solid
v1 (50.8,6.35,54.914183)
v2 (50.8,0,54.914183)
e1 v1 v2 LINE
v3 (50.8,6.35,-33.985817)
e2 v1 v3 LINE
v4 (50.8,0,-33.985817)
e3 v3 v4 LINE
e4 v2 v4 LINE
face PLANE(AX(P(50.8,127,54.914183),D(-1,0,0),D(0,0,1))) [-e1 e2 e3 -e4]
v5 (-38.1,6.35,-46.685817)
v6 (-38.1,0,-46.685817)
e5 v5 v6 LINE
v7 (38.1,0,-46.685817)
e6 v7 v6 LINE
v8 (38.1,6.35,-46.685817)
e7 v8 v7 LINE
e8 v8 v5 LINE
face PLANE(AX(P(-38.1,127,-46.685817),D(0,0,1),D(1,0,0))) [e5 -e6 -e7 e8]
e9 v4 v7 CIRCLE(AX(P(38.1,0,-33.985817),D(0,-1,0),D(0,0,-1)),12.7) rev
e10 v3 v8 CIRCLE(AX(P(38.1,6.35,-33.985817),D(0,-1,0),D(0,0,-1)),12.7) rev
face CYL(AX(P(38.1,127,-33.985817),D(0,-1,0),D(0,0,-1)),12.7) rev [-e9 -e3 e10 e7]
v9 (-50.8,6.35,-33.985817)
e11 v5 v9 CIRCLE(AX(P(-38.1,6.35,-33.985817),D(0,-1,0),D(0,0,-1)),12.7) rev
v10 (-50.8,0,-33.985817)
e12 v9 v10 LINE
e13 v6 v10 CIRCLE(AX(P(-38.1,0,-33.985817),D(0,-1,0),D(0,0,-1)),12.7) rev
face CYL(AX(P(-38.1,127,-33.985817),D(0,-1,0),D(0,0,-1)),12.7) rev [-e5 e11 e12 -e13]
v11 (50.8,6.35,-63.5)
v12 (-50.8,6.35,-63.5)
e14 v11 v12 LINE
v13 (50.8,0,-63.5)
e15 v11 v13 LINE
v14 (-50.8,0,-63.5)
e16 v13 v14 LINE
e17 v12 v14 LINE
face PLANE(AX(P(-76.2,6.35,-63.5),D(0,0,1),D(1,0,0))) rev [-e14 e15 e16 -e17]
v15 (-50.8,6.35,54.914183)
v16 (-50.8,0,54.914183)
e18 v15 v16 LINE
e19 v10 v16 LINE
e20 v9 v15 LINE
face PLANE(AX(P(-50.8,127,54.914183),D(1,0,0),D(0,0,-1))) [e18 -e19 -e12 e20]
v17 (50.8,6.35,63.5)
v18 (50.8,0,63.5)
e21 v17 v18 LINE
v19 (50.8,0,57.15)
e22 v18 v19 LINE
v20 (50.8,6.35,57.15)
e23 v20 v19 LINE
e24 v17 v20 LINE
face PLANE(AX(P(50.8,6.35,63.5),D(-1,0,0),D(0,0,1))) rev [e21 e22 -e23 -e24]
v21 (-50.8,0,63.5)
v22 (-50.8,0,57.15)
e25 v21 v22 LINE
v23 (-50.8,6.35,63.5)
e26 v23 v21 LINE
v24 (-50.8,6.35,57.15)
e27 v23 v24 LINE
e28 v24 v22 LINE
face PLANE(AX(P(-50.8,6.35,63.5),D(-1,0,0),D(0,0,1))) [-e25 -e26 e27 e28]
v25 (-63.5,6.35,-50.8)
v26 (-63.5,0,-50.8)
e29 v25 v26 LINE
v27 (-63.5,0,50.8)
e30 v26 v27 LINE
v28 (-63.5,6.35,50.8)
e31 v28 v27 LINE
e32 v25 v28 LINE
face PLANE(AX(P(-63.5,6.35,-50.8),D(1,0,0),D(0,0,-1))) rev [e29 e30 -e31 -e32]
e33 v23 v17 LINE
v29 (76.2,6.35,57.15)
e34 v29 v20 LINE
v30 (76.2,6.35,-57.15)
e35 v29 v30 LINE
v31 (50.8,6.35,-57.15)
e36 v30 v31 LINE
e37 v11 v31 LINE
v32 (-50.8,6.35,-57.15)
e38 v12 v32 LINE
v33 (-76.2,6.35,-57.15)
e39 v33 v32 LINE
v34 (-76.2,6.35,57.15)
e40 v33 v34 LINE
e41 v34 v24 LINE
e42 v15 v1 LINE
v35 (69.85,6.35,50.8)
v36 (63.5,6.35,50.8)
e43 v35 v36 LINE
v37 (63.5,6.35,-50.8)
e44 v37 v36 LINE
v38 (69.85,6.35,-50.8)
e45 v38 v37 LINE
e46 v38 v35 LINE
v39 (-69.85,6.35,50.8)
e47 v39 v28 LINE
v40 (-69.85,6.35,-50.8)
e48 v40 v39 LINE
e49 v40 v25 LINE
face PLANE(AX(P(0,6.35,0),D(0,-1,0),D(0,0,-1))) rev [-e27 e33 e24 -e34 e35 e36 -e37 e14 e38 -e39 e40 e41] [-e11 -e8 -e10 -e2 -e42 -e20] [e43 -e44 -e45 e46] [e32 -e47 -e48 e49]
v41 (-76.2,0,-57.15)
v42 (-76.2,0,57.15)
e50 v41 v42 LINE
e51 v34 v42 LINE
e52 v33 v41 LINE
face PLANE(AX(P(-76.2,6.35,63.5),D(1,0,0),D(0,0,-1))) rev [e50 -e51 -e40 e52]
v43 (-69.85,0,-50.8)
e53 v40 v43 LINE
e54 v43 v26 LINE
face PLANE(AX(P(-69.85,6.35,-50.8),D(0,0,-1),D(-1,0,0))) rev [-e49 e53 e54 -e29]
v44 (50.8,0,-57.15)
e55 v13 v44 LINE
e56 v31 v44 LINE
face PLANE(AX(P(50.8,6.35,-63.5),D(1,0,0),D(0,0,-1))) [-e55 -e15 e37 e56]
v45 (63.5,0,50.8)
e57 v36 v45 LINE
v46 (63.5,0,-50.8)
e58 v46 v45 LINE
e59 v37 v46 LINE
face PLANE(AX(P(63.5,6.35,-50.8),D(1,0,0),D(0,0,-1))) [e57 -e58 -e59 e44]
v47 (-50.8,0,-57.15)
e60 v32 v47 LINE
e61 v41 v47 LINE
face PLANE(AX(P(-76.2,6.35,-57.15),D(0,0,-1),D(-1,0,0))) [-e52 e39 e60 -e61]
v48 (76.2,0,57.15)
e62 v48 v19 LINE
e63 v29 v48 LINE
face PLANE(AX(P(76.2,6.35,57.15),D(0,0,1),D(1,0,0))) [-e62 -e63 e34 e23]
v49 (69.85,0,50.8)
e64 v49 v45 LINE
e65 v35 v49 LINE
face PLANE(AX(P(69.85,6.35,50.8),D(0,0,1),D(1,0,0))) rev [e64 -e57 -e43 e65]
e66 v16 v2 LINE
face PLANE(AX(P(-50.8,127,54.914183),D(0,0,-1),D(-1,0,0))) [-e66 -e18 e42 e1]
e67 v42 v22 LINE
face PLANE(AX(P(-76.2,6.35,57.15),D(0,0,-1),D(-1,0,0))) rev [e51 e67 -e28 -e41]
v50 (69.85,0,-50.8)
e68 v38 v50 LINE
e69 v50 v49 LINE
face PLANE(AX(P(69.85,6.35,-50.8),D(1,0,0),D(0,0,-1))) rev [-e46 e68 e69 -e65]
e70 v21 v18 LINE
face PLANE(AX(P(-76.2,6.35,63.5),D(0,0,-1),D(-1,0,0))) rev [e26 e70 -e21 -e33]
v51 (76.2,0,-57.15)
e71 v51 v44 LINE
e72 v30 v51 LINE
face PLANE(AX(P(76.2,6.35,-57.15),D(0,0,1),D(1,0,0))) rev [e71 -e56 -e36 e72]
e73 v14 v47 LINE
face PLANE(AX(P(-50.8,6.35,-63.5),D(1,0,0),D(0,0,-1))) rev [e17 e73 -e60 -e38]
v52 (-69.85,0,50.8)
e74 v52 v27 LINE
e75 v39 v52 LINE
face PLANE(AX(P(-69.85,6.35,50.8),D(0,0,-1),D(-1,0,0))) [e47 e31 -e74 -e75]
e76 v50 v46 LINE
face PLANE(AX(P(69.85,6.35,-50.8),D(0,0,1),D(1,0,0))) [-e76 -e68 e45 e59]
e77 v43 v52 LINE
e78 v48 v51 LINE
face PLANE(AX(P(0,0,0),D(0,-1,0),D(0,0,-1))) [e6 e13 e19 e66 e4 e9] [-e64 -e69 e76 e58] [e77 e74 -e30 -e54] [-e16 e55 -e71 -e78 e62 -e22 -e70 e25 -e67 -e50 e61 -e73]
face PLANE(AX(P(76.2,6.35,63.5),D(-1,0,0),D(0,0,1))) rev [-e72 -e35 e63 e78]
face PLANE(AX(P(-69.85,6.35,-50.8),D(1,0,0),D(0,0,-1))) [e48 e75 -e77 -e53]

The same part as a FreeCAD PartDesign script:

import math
import FreeCAD as App
import Part
import Sketcher

V = App.Vector
Q = App.Units.Quantity

doc = App.newDocument("Part")
body = doc.addObject("PartDesign::Body", "Body")

# Sketch on XZ plane
sketch1 = body.newObject("Sketcher::SketchObject", "Sketch")
sketch1.AttachmentSupport = (doc.getObject("XZ_Plane"), [""])
sketch1.MapMode = "FlatFace"
sketch1.addGeometry([
    Part.LineSegment(V(-76, -64, 0), V(-76, 64, 0)),
    Part.LineSegment(V(-76, 64, 0), V(76, 64, 0)),
    Part.LineSegment(V(76, 64, 0), V(76, -64, 0)),
    Part.LineSegment(V(76, -64, 0), V(-76, -64, 0)),
], False)
sketch1.addConstraint([
    Sketcher.Constraint("Coincident", 0, 2, 1, 1),
    Sketcher.Constraint("Coincident", 1, 2, 2, 1),
    Sketcher.Constraint("Coincident", 2, 2, 3, 1),
    Sketcher.Constraint("Coincident", 3, 2, 0, 1),
    Sketcher.Constraint("Vertical", 0),
    Sketcher.Constraint("Horizontal", 1),
    Sketcher.Constraint("Vertical", 2),
    Sketcher.Constraint("Horizontal", 3),
    Sketcher.Constraint("Symmetric", 0, 2, 2, 2, -1, 1),
    Sketcher.Constraint("DistanceX", 1, 1, 1, 2, Q("6 in")),
    Sketcher.Constraint("DistanceY", 0, 1, 0, 2, Q("5 in")),
])
pad1 = body.newObject("PartDesign::Pad", "Pad")
pad1.Profile = sketch1
pad1.Length = Q("0.25 in")
pad1.Reversed = True

# Sketch on XZ plane
sketch2 = body.newObject("Sketcher::SketchObject", "Sketch001")
sketch2.AttachmentSupport = (doc.getObject("XZ_Plane"), [""])
sketch2.MapMode = "FlatFace"
sketch2.addGeometry([
    Part.LineSegment(V(-76, -64, 0), V(-76, -57, 0)),  # 0
    Part.LineSegment(V(-76, -57, 0), V(-51, -57, 0)),  # 1
    Part.LineSegment(V(-51, -57, 0), V(-51, -64, 0)),  # 2
    Part.LineSegment(V(-51, -64, 0), V(-76, -64, 0)),  # 3
    Part.LineSegment(V(-76, 57, 0), V(-76, 64, 0)),  # 4
    Part.LineSegment(V(-76, 64, 0), V(-51, 64, 0)),  # 5
    Part.LineSegment(V(-51, 64, 0), V(-51, 57, 0)),  # 6
    Part.LineSegment(V(-51, 57, 0), V(-76, 57, 0)),  # 7
    Part.LineSegment(V(51, 57, 0), V(51, 64, 0)),  # 8
    Part.LineSegment(V(51, 64, 0), V(76, 64, 0)),  # 9
    Part.LineSegment(V(76, 64, 0), V(76, 57, 0)),  # 10
    Part.LineSegment(V(76, 57, 0), V(51, 57, 0)),  # 11
    Part.LineSegment(V(51, -64, 0), V(51, -57, 0)),  # 12
    Part.LineSegment(V(51, -57, 0), V(76, -57, 0)),  # 13
    Part.LineSegment(V(76, -57, 0), V(76, -64, 0)),  # 14
    Part.LineSegment(V(76, -64, 0), V(51, -64, 0)),  # 15
    Part.LineSegment(V(64, -51, 0), V(64, 51, 0)),  # 16
    Part.LineSegment(V(64, 51, 0), V(70, 51, 0)),  # 17
    Part.LineSegment(V(70, 51, 0), V(70, -51, 0)),  # 18
    Part.LineSegment(V(70, -51, 0), V(64, -51, 0)),  # 19
    Part.LineSegment(V(-70, -51, 0), V(-70, 51, 0)),  # 20
    Part.LineSegment(V(-70, 51, 0), V(-64, 51, 0)),  # 21
    Part.LineSegment(V(-64, 51, 0), V(-64, -51, 0)),  # 22
    Part.LineSegment(V(-64, -51, 0), V(-70, -51, 0)),  # 23
], False)
sketch2.addConstraint([
    Sketcher.Constraint("Coincident", 0, 2, 1, 1),
    Sketcher.Constraint("Coincident", 1, 2, 2, 1),
    Sketcher.Constraint("Coincident", 2, 2, 3, 1),
    Sketcher.Constraint("Coincident", 3, 2, 0, 1),
    Sketcher.Constraint("Coincident", 4, 2, 5, 1),
    Sketcher.Constraint("Coincident", 5, 2, 6, 1),
    Sketcher.Constraint("Coincident", 6, 2, 7, 1),
    Sketcher.Constraint("Coincident", 7, 2, 4, 1),
    Sketcher.Constraint("Coincident", 8, 2, 9, 1),
    Sketcher.Constraint("Coincident", 9, 2, 10, 1),
    Sketcher.Constraint("Coincident", 10, 2, 11, 1),
    Sketcher.Constraint("Coincident", 11, 2, 8, 1),
    Sketcher.Constraint("Coincident", 12, 2, 13, 1),
    Sketcher.Constraint("Coincident", 13, 2, 14, 1),
    Sketcher.Constraint("Coincident", 14, 2, 15, 1),
    Sketcher.Constraint("Coincident", 15, 2, 12, 1),
    Sketcher.Constraint("Coincident", 16, 2, 17, 1),
    Sketcher.Constraint("Coincident", 17, 2, 18, 1),
    Sketcher.Constraint("Coincident", 18, 2, 19, 1),
    Sketcher.Constraint("Coincident", 19, 2, 16, 1),
    Sketcher.Constraint("Coincident", 20, 2, 21, 1),
    Sketcher.Constraint("Coincident", 21, 2, 22, 1),
    Sketcher.Constraint("Coincident", 22, 2, 23, 1),
    Sketcher.Constraint("Coincident", 23, 2, 20, 1),
    Sketcher.Constraint("Vertical", 0),
    Sketcher.Constraint("Horizontal", 1),
    Sketcher.Constraint("Vertical", 2),
    Sketcher.Constraint("Horizontal", 3),
    Sketcher.Constraint("Vertical", 4),
    Sketcher.Constraint("Horizontal", 5),
    Sketcher.Constraint("Vertical", 6),
    Sketcher.Constraint("Horizontal", 7),
    Sketcher.Constraint("Vertical", 8),
    Sketcher.Constraint("Horizontal", 9),
    Sketcher.Constraint("Vertical", 10),
    Sketcher.Constraint("Horizontal", 11),
    Sketcher.Constraint("Vertical", 12),
    Sketcher.Constraint("Horizontal", 13),
    Sketcher.Constraint("Vertical", 14),
    Sketcher.Constraint("Horizontal", 15),
    Sketcher.Constraint("Vertical", 16),
    Sketcher.Constraint("Horizontal", 17),
    Sketcher.Constraint("Vertical", 18),
    Sketcher.Constraint("Horizontal", 19),
    Sketcher.Constraint("Vertical", 20),
    Sketcher.Constraint("Horizontal", 21),
    Sketcher.Constraint("Vertical", 22),
    Sketcher.Constraint("Horizontal", 23),
    Sketcher.Constraint("Symmetric", 2, 2, 8, 2, -1, 1),
    Sketcher.Constraint("Symmetric", 0, 2, 10, 2, -1, 1),
    Sketcher.Constraint("Symmetric", 6, 2, 12, 2, -1, 1),
    Sketcher.Constraint("Symmetric", 4, 2, 14, 2, -1, 1),
    Sketcher.Constraint("Symmetric", 18, 2, 20, 2, -1, 1),
    Sketcher.Constraint("Symmetric", 16, 2, 22, 2, -1, 1),
    Sketcher.Constraint("Symmetric", 5, 2, 8, 2, -2),
    Sketcher.Constraint("Symmetric", 7, 2, 10, 2, -2),
    Sketcher.Constraint("Horizontal", 17, 2, 20, 2),
    Sketcher.Constraint("Equal", 23, 0),
    Sketcher.Constraint("DistanceX", 1, 1, 1, 2, Q("1 in")),
    Sketcher.Constraint("DistanceY", 16, 1, 16, 2, Q("4 in")),
    Sketcher.Constraint("DistanceX", 0, 2, -1, 1, Q("3 in")),
    Sketcher.Constraint("DistanceY", 3, 2, 4, 2, Q("5 in")),
    Sketcher.Constraint("DistanceX", 17, 1, 17, 2, Q("0.25 in")),
    Sketcher.Constraint("DistanceX", -1, 1, 16, 2, Q("2.5 in")),
])
pocket1 = body.newObject("PartDesign::Pocket", "Pocket")
pocket1.Profile = sketch2
pocket1.Type = "ThroughAll"
pocket1.Midplane = True

# Sketch on XZ plane
sketch3 = body.newObject("Sketcher::SketchObject", "Sketch002")
sketch3.AttachmentSupport = (doc.getObject("XZ_Plane"), [""])
sketch3.MapMode = "FlatFace"
sketch3.addGeometry([
    Part.LineSegment(V(-51, 55, 0), V(51, 55, 0)),  # 0
    Part.LineSegment(V(51, 55, 0), V(51, -34, 0)),  # 1
    Part.ArcOfCircle(Part.Circle(V(38, -34, 0), V(0, 0, 1), 13), math.radians(-90), math.radians(0)),  # 2
    Part.LineSegment(V(38, -47, 0), V(-38, -47, 0)),  # 3
    Part.ArcOfCircle(Part.Circle(V(-38, -34, 0), V(0, 0, 1), 13), math.radians(180), math.radians(270)),  # 4
    Part.LineSegment(V(-51, -34, 0), V(-51, 55, 0)),  # 5
], False)
sketch3.addConstraint([
    Sketcher.Constraint("Coincident", 0, 2, 1, 1),
    Sketcher.Constraint("Tangent", 1, 2, 2, 2),
    Sketcher.Constraint("Tangent", 2, 1, 3, 1),
    Sketcher.Constraint("Tangent", 3, 2, 4, 2),
    Sketcher.Constraint("Tangent", 4, 1, 5, 1),
    Sketcher.Constraint("Coincident", 5, 2, 0, 1),
    Sketcher.Constraint("Horizontal", 0),
    Sketcher.Constraint("Vertical", 1),
    Sketcher.Constraint("Horizontal", 3),
    Sketcher.Constraint("Vertical", 5),
    Sketcher.Constraint("Equal", 2, 4),
    Sketcher.Constraint("Radius", 2, Q("0.5 in")),
    Sketcher.Constraint("DistanceX", 0, 1, 0, 2, Q("4 in")),
    Sketcher.Constraint("DistanceY", 1, 2, 1, 1, Q("3.5 in")),
    Sketcher.Constraint("DistanceX", -1, 1, 0, 2, Q("2 in")),
    Sketcher.Constraint("DistanceY", 2, 3, -1, 1, Q("33.985817 mm")),
])
pocket2 = body.newObject("PartDesign::Pocket", "Pocket001")
pocket2.Profile = sketch3
pocket2.Type = "ThroughAll"
pocket2.Midplane = True

doc.recompute()
